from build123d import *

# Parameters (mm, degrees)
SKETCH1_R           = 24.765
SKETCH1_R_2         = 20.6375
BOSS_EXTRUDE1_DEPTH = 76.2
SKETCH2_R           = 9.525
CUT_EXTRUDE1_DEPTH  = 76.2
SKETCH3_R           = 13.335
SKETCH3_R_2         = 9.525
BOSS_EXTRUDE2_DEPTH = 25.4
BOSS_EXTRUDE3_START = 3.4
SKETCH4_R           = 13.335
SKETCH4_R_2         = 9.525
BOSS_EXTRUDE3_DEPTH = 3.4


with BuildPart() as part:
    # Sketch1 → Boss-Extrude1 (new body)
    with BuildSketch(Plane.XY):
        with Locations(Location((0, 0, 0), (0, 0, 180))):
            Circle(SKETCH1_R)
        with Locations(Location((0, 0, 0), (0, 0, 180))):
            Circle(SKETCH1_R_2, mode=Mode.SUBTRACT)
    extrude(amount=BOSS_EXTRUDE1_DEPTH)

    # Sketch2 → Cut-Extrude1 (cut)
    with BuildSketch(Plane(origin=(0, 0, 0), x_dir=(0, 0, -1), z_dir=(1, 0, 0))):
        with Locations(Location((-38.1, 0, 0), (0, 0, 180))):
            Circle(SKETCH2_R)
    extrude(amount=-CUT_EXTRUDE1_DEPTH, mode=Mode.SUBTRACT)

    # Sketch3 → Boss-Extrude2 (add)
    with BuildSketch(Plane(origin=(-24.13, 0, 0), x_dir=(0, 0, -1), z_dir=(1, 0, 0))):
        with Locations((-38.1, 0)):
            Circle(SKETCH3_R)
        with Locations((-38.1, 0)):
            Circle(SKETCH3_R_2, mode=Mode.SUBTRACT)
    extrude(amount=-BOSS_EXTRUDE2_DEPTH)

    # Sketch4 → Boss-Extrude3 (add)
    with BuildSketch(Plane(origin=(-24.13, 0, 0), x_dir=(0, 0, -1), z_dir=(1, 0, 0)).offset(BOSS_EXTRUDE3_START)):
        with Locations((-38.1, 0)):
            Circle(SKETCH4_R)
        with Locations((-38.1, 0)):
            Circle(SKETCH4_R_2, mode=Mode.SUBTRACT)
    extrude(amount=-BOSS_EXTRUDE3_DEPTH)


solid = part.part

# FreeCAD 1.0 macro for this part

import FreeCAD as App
import Part
import Sketcher
from FreeCAD import Vector
Q = App.Units.Quantity

doc = App.newDocument("Part")
body = doc.addObject("PartDesign::Body", "Body")

sketch1 = doc.addObject("Sketcher::SketchObject", "Sketch")
body.addObject(sketch1)
sketch1.AttachmentSupport = (doc.XY_Plane, [""])
sketch1.MapMode = "FlatFace"
sketch1.addGeometry(Part.Circle(Vector(0, 0, 0), Vector(0, 0, 1), 24.765), False)
sketch1.addGeometry(Part.Circle(Vector(0, 0, 0), Vector(0, 0, 1), 20.6375), False)
sketch1.addConstraint(Sketcher.Constraint("Coincident", 0, 3, -1, 1))
sketch1.addConstraint(Sketcher.Constraint("Coincident", 1, 3, -1, 1))
sketch1.addConstraint(Sketcher.Constraint("Diameter", 0, Q("1.95 in")))
sketch1.addConstraint(Sketcher.Constraint("Diameter", 1, Q("1.625 in")))
pad1 = doc.addObject("PartDesign::Pad", "Pad")
body.addObject(pad1)
pad1.Profile = sketch1
pad1.Length = Q("3 in")

sketch2 = doc.addObject("Sketcher::SketchObject", "Sketch001")
body.addObject(sketch2)
sketch2.AttachmentSupport = (doc.YZ_Plane, [""])
sketch2.MapMode = "FlatFace"
sketch2.addGeometry(Part.Circle(Vector(0, 38.1, 0), Vector(0, 0, 1), 9.525), False)
sketch2.addConstraint(Sketcher.Constraint("PointOnObject", 0, 3, -2))
sketch2.addConstraint(Sketcher.Constraint("Diameter", 0, Q("0.75 in")))
sketch2.addConstraint(Sketcher.Constraint("DistanceY", -1, 1, 0, 3, Q("1.5 in")))
pocket1 = doc.addObject("PartDesign::Pocket", "Pocket")
body.addObject(pocket1)
pocket1.Profile = sketch2
pocket1.Length = Q("3 in")

sketch3 = doc.addObject("Sketcher::SketchObject", "Sketch002")
body.addObject(sketch3)
sketch3.AttachmentSupport = (doc.YZ_Plane, [""])
sketch3.MapMode = "FlatFace"
sketch3.AttachmentOffset = App.Placement(Vector(0, 0, -0.95 * 25.4), App.Rotation())
sketch3.addGeometry(Part.Circle(Vector(0, 38.1, 0), Vector(0, 0, 1), 13.335), False)
sketch3.addGeometry(Part.Circle(Vector(0, 38.1, 0), Vector(0, 0, 1), 9.525), False)
sketch3.addConstraint(Sketcher.Constraint("Coincident", 1, 3, 0, 3))
sketch3.addConstraint(Sketcher.Constraint("PointOnObject", 0, 3, -2))
sketch3.addConstraint(Sketcher.Constraint("Diameter", 0, Q("1.05 in")))
sketch3.addConstraint(Sketcher.Constraint("Diameter", 1, Q("0.75 in")))
sketch3.addConstraint(Sketcher.Constraint("DistanceY", -1, 1, 0, 3, Q("1.5 in")))
pad2 = doc.addObject("PartDesign::Pad", "Pad001")
body.addObject(pad2)
pad2.Profile = sketch3
pad2.Length = Q("1 in")
pad2.Reversed = True

sketch4 = doc.addObject("Sketcher::SketchObject", "Sketch003")
body.addObject(sketch4)
sketch4.AttachmentSupport = (doc.YZ_Plane, [""])
sketch4.MapMode = "FlatFace"
sketch4.AttachmentOffset = App.Placement(Vector(0, 0, -20.73), App.Rotation())
sketch4.addGeometry(Part.Circle(Vector(0, 38.1, 0), Vector(0, 0, 1), 13.335), False)
sketch4.addGeometry(Part.Circle(Vector(0, 38.1, 0), Vector(0, 0, 1), 9.525), False)
sketch4.addConstraint(Sketcher.Constraint("Coincident", 1, 3, 0, 3))
sketch4.addConstraint(Sketcher.Constraint("PointOnObject", 0, 3, -2))
sketch4.addConstraint(Sketcher.Constraint("Diameter", 0, Q("1.05 in")))
sketch4.addConstraint(Sketcher.Constraint("Diameter", 1, Q("0.75 in")))
sketch4.addConstraint(Sketcher.Constraint("DistanceY", -1, 1, 0, 3, Q("1.5 in")))
pad3 = doc.addObject("PartDesign::Pad", "Pad002")
body.addObject(pad3)
pad3.Profile = sketch4
pad3.Length = 3.4
pad3.Reversed = True

doc.recompute()
